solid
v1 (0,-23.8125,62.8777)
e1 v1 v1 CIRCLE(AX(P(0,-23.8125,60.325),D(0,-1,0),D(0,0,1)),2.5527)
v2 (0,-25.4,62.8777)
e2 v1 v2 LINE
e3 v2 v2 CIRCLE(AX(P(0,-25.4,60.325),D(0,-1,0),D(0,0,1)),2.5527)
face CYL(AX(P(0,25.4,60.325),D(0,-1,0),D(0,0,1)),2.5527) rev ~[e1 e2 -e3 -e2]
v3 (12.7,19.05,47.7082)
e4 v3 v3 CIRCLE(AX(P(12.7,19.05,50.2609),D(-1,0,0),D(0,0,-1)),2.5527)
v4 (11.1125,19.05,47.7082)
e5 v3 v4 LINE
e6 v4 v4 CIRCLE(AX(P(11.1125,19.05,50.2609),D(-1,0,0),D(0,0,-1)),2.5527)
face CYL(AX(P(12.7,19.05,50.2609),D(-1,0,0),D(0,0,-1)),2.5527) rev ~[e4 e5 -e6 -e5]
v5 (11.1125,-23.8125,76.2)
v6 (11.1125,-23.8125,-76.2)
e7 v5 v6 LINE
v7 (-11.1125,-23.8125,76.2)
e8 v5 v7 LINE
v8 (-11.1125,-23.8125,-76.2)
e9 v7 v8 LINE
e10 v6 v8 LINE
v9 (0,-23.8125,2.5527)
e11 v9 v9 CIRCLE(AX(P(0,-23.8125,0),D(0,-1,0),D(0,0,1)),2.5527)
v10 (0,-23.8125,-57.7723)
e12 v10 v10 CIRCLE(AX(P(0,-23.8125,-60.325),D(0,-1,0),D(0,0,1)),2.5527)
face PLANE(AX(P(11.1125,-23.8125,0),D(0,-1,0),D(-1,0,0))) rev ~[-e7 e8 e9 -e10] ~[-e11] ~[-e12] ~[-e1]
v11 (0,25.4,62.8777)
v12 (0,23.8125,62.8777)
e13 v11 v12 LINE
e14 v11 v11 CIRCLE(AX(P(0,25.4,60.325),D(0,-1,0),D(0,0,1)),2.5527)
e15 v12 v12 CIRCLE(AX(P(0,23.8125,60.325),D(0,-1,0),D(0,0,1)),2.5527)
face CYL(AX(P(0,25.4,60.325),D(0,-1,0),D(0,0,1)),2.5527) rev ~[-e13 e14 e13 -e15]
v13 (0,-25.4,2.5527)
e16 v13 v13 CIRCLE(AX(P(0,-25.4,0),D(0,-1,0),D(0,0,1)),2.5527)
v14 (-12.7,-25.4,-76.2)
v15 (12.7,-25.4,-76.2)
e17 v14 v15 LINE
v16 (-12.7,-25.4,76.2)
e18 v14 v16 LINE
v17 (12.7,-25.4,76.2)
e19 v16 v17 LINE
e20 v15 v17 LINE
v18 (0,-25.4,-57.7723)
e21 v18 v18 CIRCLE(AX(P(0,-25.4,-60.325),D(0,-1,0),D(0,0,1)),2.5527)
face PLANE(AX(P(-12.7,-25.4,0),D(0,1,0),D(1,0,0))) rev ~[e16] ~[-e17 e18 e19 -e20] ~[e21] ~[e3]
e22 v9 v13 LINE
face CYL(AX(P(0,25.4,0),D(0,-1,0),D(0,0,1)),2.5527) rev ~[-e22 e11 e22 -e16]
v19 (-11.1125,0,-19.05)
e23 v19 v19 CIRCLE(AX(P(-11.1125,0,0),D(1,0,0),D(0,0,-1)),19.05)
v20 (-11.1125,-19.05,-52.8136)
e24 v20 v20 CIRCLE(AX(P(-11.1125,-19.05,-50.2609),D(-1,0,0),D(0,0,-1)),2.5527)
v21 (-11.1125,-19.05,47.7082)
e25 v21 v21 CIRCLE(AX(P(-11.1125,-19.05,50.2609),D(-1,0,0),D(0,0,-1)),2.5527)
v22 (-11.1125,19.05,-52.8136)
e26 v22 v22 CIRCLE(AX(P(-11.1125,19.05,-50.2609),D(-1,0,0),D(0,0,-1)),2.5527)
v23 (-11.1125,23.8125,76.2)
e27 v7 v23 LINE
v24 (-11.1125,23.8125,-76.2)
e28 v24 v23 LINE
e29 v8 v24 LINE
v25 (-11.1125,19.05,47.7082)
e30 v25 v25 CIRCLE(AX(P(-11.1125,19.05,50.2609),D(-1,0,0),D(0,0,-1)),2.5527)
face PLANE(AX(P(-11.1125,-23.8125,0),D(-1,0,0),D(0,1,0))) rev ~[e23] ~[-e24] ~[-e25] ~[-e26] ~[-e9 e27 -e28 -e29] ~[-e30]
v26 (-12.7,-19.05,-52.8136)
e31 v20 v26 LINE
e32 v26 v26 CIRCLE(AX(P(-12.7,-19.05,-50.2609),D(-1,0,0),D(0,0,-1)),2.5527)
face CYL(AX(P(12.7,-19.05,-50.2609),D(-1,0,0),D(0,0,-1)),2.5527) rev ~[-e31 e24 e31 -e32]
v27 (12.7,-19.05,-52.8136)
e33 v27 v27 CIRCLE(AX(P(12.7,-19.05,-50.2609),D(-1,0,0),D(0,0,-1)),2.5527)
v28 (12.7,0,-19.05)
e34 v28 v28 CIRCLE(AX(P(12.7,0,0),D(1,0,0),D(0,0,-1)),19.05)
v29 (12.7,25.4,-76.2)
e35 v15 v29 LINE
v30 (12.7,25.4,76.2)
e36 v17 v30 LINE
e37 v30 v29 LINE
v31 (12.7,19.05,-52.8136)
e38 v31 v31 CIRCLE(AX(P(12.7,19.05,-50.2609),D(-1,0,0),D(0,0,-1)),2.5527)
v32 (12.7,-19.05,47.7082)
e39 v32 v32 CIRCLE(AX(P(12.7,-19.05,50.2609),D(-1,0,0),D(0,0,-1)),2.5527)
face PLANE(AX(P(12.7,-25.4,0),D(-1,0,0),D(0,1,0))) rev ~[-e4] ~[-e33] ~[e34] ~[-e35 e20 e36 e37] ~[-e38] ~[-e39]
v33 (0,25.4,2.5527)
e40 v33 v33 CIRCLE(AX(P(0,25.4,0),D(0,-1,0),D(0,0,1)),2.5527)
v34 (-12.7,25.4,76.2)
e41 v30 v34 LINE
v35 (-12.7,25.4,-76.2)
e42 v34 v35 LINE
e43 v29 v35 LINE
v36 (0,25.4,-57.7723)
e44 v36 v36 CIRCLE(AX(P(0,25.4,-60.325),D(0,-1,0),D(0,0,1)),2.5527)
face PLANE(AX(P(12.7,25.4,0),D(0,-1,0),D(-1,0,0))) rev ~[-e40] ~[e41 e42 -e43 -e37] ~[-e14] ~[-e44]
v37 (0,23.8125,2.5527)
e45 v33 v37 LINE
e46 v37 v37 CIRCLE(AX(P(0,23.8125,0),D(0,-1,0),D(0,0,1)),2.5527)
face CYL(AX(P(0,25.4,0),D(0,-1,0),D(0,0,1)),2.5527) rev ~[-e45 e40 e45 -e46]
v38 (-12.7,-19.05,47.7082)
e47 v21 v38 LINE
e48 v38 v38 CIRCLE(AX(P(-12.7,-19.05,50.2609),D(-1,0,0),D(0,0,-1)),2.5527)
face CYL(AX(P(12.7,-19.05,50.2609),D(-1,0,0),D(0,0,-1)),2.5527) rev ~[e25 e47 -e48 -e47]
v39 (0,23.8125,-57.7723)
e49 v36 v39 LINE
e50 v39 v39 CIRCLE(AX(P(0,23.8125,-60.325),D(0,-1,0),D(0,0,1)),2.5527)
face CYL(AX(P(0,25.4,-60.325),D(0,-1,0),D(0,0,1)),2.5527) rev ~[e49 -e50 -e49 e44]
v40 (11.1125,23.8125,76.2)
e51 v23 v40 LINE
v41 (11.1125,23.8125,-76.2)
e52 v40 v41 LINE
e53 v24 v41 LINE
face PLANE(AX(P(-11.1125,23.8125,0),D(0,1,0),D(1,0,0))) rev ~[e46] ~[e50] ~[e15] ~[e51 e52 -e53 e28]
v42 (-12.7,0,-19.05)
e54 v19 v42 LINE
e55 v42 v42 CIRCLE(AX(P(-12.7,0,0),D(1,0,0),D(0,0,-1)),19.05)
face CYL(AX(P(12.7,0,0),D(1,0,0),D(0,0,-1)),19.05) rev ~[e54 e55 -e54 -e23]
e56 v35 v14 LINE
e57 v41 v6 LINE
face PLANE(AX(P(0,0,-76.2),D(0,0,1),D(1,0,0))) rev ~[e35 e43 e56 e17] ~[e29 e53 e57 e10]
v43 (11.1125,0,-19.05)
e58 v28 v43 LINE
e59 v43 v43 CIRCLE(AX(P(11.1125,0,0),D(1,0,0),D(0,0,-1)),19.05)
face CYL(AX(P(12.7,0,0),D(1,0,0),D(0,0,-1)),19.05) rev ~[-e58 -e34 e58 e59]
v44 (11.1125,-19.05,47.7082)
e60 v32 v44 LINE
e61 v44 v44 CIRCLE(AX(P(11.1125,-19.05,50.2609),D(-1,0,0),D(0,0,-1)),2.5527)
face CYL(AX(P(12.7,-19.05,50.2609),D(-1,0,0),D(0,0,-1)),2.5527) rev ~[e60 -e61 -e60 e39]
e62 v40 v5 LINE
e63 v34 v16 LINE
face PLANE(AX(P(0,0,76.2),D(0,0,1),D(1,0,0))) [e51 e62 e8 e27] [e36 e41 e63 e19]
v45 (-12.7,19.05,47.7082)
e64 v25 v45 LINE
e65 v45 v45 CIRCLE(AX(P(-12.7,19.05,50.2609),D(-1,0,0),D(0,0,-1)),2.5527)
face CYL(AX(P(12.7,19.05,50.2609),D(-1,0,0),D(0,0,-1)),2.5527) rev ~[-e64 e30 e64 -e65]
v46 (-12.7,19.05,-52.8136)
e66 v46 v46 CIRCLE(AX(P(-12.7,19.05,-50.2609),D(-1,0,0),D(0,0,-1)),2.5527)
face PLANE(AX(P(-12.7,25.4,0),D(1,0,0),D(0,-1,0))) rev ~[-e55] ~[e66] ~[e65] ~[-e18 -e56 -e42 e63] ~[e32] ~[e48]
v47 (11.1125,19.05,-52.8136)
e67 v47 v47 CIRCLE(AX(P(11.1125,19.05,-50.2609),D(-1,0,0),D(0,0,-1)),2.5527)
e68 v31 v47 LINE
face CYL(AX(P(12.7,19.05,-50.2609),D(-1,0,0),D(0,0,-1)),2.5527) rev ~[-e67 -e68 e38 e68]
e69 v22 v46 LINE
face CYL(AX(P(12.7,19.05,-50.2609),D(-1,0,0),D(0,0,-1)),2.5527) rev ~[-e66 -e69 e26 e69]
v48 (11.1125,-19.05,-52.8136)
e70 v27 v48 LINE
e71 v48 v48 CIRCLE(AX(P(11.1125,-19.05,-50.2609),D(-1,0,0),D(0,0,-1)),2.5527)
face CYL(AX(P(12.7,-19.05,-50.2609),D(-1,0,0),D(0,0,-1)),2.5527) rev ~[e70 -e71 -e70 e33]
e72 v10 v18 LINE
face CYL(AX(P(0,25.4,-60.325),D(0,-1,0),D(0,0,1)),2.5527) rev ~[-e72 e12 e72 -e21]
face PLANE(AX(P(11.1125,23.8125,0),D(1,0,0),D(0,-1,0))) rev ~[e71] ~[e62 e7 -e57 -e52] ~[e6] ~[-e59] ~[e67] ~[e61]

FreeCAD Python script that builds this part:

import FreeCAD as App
import Part
import Sketcher
from FreeCAD import Vector
Q = App.Units.Quantity

doc = App.newDocument("Part")
params = doc.addObject("Spreadsheet::Sheet", "Params")
for row, (alias, value) in enumerate([
    ("sketch1_width", "1 in"),
    ("sketch1_height", "2 in"),
    ("pad1_length", "6 in"),
    ("sketch2_diameter", "0.201 in"),
    ("hole_diameter", "0.201 in"),
    ("sketch3_diameter", "0.201 in"),
    ("hole2_diameter", "0.201 in"),
    ("sketch4_diameter", "1.5 in"),
    ("pocket1_length", "1 in"),
], start=1):
    params.set(f"A{row}", alias)
    params.set(f"B{row}", "=" + value)
    params.setAlias(f"B{row}", alias)

body = doc.addObject("PartDesign::Body", "Body")

sketch1 = doc.addObject("Sketcher::SketchObject", "Sketch")
body.addObject(sketch1)
sketch1.AttachmentSupport = (doc.XY_Plane, [""])
sketch1.MapMode = "FlatFace"
sketch1.addGeometry([
    Part.LineSegment(Vector(-13, 25, 0), Vector(-13, -25, 0)),
    Part.LineSegment(Vector(-13, -25, 0), Vector(13, -25, 0)),
    Part.LineSegment(Vector(13, -25, 0), Vector(13, 25, 0)),
    Part.LineSegment(Vector(13, 25, 0), Vector(-13, 25, 0)),
    Part.LineSegment(Vector(-11, -24, 0), Vector(-11, 24, 0)),
    Part.LineSegment(Vector(-11, 24, 0), Vector(11, 24, 0)),
    Part.LineSegment(Vector(11, 24, 0), Vector(11, -24, 0)),
    Part.LineSegment(Vector(11, -24, 0), Vector(-11, -24, 0)),
], False)
sketch1.addConstraint([
    Sketcher.Constraint("Coincident", 0, 2, 1, 1),
    Sketcher.Constraint("Coincident", 1, 2, 2, 1),
    Sketcher.Constraint("Coincident", 2, 2, 3, 1),
    Sketcher.Constraint("Coincident", 3, 2, 0, 1),
    Sketcher.Constraint("Coincident", 4, 2, 5, 1),
    Sketcher.Constraint("Coincident", 5, 2, 6, 1),
    Sketcher.Constraint("Coincident", 6, 2, 7, 1),
    Sketcher.Constraint("Coincident", 7, 2, 4, 1),
    Sketcher.Constraint("Vertical", 0),
    Sketcher.Constraint("Horizontal", 1),
    Sketcher.Constraint("Vertical", 2),
    Sketcher.Constraint("Horizontal", 3),
    Sketcher.Constraint("Vertical", 4),
    Sketcher.Constraint("Horizontal", 5),
    Sketcher.Constraint("Vertical", 6),
    Sketcher.Constraint("Horizontal", 7),
    Sketcher.Constraint("Symmetric", 0, 2, 2, 2, -1, 1),
    Sketcher.Constraint("Symmetric", 4, 2, 6, 2, -1, 1),
    Sketcher.Constraint("DistanceX", 1, 1, 1, 2, Q("1 in")),
    Sketcher.Constraint("DistanceY", 0, 2, 0, 1, Q("2 in")),
    Sketcher.Constraint("DistanceX", 3, 2, 4, 2, Q("0.0625 in")),
    Sketcher.Constraint("DistanceY", 4, 2, 3, 2, Q("0.0625 in")),
])
sketch1.setExpression("Constraints[18]", "Params.sketch1_width")
sketch1.setExpression("Constraints[19]", "Params.sketch1_height")
pad1 = doc.addObject("PartDesign::Pad", "Pad")
body.addObject(pad1)
pad1.Profile = sketch1
pad1.setExpression("Length", "Params.pad1_length")
pad1.Midplane = True

sketch2 = doc.addObject("Sketcher::SketchObject", "Sketch001")
body.addObject(sketch2)
sketch2.AttachmentSupport = (doc.XZ_Plane, [""])
sketch2.MapMode = "FlatFace"
sketch2.AttachmentOffset = App.Placement(Vector(0, 0, -1 * 25.4), App.Rotation())
sketch2.addGeometry([
    Part.Circle(Vector(0, -60.3, 0), Vector(0, 0, 1), 2.6),
    Part.Circle(Vector(0, 60.3, 0), Vector(0, 0, 1), 2.6),
    Part.Circle(Vector(0, 0, 0), Vector(0, 0, 1), 2.6),
], False)
sketch2.addConstraint([
    Sketcher.Constraint("Coincident", 2, 3, -1, 1),
    Sketcher.Constraint("Equal", 0, 1),
    Sketcher.Constraint("Equal", 1, 2),
    Sketcher.Constraint("Symmetric", 0, 3, 1, 3, -1, 1),
    Sketcher.Constraint("PointOnObject", 0, 3, -2),
    Sketcher.Constraint("Diameter", 0, Q("0.201 in")),
    Sketcher.Constraint("DistanceY", 0, 3, 1, 3, Q("4.75 in")),
])
sketch2.setExpression("Constraints[5]", "Params.sketch2_diameter")
doc.recompute()
hole = doc.addObject("PartDesign::Hole", "Hole")
body.addObject(hole)
hole.Profile = sketch2
hole.ThreadType = "None"
hole.setExpression("Diameter", "Params.hole_diameter")
hole.DepthType = "ThroughAll"
hole.Reversed = True

sketch3 = doc.addObject("Sketcher::SketchObject", "Sketch002")
body.addObject(sketch3)
sketch3.AttachmentSupport = (doc.YZ_Plane, [""])
sketch3.MapMode = "FlatFace"
sketch3.AttachmentOffset = App.Placement(Vector(0, 0, 0.5 * 25.4), App.Rotation())
sketch3.addGeometry([
    Part.Circle(Vector(19.1, 50.3, 0), Vector(0, 0, 1), 2.6),
    Part.Circle(Vector(19.1, -50.3, 0), Vector(0, 0, 1), 2.6),
    Part.Circle(Vector(-19.1, -50.3, 0), Vector(0, 0, 1), 2.6),
    Part.Circle(Vector(-19.1, 50.3, 0), Vector(0, 0, 1), 2.6),
], False)
sketch3.addConstraint([
    Sketcher.Constraint("Equal", 0, 1),
    Sketcher.Constraint("Equal", 1, 2),
    Sketcher.Constraint("Equal", 2, 3),
    Sketcher.Constraint("Symmetric", 0, 3, 2, 3, -1, 1),
    Sketcher.Constraint("Symmetric", 1, 3, 3, 3, -1, 1),
    Sketcher.Constraint("Symmetric", 1, 3, 2, 3, -2),
    Sketcher.Constraint("Diameter", 0, Q("0.201 in")),
    Sketcher.Constraint("DistanceX", 2, 3, 1, 3, Q("1.5 in")),
    Sketcher.Constraint("DistanceY", -1, 1, 0, 3, Q("50.261 mm")),
])
sketch3.setExpression("Constraints[6]", "Params.sketch3_diameter")
doc.recompute()
hole2 = doc.addObject("PartDesign::Hole", "Hole001")
body.addObject(hole2)
hole2.Profile = sketch3
hole2.ThreadType = "None"
hole2.setExpression("Diameter", "Params.hole2_diameter")
hole2.DepthType = "ThroughAll"

sketch4 = doc.addObject("Sketcher::SketchObject", "Sketch003")
body.addObject(sketch4)
sketch4.AttachmentSupport = (doc.YZ_Plane, [""])
sketch4.MapMode = "FlatFace"
sketch4.AttachmentOffset = App.Placement(Vector(0, 0, 0.5 * 25.4), App.Rotation())
sketch4.addGeometry(Part.Circle(Vector(0, 0, 0), Vector(0, 0, 1), 19), False)
sketch4.addConstraint([
    Sketcher.Constraint("Coincident", 0, 3, -1, 1),
    Sketcher.Constraint("Diameter", 0, Q("1.5 in")),
])
sketch4.setExpression("Constraints[1]", "Params.sketch4_diameter")
pocket1 = doc.addObject("PartDesign::Pocket", "Pocket")
body.addObject(pocket1)
pocket1.Profile = sketch4
pocket1.setExpression("Length", "Params.pocket1_length")

doc.recompute()
